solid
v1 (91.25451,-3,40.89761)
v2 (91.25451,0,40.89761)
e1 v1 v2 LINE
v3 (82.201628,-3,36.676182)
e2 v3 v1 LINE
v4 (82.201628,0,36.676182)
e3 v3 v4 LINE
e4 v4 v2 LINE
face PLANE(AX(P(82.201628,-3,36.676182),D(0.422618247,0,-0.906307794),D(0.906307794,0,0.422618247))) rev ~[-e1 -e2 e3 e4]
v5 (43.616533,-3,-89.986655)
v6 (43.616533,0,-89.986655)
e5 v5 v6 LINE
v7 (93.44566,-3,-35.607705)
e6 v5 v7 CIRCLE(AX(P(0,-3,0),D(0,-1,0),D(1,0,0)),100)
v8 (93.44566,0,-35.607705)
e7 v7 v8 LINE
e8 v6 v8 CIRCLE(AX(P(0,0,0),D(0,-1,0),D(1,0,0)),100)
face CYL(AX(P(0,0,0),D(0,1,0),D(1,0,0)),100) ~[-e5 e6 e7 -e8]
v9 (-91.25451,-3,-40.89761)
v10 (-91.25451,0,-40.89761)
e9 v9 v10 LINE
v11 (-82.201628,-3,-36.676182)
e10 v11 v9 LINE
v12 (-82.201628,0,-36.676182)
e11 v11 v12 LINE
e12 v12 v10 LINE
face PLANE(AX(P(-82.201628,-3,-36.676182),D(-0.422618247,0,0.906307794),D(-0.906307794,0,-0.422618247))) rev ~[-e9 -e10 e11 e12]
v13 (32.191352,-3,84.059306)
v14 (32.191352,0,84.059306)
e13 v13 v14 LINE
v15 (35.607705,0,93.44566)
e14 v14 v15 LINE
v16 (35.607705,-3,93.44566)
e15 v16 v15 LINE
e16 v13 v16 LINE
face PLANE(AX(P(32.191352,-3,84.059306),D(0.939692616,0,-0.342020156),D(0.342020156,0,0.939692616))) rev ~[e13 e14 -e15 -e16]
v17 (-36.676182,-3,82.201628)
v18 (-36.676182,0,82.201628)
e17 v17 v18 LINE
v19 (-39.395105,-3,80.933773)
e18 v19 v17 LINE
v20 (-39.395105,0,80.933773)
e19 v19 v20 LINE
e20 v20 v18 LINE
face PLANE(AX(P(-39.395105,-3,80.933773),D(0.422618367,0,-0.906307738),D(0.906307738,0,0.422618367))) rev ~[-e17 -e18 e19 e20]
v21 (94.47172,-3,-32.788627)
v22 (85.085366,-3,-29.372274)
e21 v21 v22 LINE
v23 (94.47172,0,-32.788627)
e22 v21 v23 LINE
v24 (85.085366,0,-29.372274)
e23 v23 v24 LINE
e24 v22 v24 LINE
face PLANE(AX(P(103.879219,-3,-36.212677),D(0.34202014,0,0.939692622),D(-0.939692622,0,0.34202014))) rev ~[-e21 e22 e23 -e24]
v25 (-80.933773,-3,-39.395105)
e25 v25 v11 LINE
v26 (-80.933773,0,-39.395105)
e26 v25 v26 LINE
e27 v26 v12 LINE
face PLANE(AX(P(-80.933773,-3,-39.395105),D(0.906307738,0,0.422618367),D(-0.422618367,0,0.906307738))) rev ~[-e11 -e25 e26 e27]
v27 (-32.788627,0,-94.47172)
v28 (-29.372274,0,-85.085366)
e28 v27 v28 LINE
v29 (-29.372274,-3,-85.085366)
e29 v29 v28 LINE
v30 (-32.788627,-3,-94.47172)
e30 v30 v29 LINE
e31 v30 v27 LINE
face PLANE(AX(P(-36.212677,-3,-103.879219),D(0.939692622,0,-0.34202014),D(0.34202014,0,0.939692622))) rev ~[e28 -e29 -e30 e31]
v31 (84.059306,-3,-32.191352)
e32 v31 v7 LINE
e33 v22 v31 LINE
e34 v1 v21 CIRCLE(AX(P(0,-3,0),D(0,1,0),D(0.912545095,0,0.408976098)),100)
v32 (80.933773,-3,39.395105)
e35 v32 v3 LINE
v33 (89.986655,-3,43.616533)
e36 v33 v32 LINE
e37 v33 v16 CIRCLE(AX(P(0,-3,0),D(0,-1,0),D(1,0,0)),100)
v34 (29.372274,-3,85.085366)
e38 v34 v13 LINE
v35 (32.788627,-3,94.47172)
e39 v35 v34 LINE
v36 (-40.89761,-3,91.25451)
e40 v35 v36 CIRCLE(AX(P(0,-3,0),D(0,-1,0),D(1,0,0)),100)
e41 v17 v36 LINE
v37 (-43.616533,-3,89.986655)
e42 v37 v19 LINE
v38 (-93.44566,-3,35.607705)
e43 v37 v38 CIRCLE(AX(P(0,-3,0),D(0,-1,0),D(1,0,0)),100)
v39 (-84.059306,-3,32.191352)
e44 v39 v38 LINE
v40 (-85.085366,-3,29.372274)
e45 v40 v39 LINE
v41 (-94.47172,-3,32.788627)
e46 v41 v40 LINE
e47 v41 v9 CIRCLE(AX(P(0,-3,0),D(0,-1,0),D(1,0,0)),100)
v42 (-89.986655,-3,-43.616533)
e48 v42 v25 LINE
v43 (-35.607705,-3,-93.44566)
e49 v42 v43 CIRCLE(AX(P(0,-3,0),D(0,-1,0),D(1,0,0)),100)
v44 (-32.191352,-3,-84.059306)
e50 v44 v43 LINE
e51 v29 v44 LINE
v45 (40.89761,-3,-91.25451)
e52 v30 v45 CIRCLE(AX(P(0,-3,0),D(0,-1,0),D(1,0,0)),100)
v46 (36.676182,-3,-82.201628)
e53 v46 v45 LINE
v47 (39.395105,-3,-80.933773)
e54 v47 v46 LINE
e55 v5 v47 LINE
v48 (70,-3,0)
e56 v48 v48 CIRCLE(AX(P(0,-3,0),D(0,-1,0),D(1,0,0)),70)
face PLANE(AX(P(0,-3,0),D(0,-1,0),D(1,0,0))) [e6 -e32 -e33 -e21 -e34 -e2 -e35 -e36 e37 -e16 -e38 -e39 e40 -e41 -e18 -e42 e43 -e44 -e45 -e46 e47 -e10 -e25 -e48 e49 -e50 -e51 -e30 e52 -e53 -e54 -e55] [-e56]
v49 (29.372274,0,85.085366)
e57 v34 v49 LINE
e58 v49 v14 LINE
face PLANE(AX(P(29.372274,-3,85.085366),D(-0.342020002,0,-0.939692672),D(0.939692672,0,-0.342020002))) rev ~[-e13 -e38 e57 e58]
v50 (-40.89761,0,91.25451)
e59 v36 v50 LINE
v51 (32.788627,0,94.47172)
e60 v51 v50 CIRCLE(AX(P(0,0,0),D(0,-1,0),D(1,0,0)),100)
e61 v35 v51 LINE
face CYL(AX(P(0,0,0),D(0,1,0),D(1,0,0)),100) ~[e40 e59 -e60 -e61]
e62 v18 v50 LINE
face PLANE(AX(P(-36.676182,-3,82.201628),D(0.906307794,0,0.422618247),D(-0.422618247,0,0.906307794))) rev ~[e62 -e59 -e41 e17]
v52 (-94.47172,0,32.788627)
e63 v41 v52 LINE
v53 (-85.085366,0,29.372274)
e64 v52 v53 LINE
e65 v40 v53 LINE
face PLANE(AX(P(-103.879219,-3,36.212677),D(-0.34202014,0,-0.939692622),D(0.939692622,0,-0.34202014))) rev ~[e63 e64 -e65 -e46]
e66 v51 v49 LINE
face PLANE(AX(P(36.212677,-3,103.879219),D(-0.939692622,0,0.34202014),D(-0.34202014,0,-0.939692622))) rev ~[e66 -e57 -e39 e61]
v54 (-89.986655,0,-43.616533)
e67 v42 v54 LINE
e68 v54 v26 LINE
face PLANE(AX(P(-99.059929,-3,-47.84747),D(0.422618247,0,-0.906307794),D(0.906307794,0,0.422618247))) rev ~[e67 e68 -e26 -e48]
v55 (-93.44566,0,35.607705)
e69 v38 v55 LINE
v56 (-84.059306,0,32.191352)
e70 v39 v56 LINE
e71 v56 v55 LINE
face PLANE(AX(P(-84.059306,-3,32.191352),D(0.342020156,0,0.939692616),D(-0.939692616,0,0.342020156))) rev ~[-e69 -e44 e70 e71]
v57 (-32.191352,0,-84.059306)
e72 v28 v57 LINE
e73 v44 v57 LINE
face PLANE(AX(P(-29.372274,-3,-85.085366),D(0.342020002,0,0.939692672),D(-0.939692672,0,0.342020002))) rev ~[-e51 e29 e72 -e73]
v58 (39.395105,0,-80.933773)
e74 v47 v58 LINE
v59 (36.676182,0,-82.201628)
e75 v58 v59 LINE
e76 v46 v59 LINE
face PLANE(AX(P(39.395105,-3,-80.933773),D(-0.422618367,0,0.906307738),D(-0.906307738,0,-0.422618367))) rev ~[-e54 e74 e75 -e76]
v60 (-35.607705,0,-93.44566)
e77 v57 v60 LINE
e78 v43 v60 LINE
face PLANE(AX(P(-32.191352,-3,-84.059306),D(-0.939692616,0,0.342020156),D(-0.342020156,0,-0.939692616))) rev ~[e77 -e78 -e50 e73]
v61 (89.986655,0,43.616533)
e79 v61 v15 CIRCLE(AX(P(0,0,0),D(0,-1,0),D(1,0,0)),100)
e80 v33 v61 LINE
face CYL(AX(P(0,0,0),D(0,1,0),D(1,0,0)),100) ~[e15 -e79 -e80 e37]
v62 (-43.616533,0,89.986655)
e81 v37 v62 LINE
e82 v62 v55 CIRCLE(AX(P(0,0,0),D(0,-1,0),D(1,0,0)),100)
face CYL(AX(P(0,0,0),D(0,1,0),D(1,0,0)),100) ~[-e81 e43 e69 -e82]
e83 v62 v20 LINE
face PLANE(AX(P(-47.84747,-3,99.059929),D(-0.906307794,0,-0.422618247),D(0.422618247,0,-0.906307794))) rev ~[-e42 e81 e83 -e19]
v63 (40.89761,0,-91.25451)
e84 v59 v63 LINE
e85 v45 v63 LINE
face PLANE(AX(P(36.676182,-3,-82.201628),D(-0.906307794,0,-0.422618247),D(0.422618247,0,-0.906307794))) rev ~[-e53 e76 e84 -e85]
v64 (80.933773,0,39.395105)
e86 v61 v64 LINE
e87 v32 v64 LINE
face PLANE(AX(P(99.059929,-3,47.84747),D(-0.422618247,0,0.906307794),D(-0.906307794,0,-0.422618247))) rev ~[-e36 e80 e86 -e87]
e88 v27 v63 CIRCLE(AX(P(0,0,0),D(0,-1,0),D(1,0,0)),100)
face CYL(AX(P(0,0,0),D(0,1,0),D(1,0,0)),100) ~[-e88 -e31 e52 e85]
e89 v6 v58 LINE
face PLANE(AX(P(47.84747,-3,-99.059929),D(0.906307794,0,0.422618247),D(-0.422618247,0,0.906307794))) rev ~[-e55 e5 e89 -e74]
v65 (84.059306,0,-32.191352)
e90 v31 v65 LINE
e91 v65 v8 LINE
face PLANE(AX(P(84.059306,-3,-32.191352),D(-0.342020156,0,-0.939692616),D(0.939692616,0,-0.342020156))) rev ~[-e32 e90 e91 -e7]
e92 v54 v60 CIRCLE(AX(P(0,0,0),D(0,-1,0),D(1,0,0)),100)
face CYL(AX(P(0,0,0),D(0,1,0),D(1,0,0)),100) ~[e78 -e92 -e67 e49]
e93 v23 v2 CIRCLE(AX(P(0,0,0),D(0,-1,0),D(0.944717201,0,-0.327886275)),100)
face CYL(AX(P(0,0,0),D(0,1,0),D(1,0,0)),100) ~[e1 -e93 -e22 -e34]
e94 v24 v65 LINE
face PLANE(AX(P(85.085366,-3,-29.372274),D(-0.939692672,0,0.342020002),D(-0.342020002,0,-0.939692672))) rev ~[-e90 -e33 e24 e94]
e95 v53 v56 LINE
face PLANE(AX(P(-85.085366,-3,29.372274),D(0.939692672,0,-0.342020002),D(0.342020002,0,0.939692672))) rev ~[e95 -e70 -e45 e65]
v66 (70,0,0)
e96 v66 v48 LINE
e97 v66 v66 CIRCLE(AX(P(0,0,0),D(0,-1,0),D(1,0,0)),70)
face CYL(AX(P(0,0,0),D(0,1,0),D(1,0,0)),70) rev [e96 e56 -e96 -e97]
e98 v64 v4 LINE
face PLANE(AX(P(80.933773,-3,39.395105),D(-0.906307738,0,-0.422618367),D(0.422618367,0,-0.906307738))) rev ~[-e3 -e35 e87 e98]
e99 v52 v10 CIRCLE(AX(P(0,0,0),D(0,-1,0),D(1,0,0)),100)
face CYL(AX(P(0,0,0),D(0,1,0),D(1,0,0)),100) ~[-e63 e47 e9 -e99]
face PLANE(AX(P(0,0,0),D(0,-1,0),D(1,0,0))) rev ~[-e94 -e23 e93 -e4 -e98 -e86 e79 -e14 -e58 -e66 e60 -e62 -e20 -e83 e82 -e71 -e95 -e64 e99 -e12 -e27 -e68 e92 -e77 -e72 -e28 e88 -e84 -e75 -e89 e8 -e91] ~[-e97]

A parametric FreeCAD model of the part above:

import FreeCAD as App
import Part
import Sketcher
Q = App.Units.Quantity

doc = App.newDocument("Part")
body = doc.addObject("PartDesign::Body", "Body")

sketch1 = body.newObject("Sketcher::SketchObject", "Sketch")
sketch1.AttachmentSupport = (doc.getObject("XZ_Plane"), [""])
sketch1.MapMode = "FlatFace"
sketch1.addGeometry(Part.Circle(App.Vector(0, 0, 0), App.Vector(0, 0, 1), 100), False)
sketch1.addGeometry(Part.Circle(App.Vector(0, 0, 0), App.Vector(0, 0, 1), 70), False)
sketch1.addConstraint(Sketcher.Constraint("Coincident", 0, 3, -1, 1))
sketch1.addConstraint(Sketcher.Constraint("Coincident", 1, 3, -1, 1))
sketch1.addConstraint(Sketcher.Constraint("Diameter", 0, 200.0))
sketch1.addConstraint(Sketcher.Constraint("Diameter", 1, 140.0))
pad1 = body.newObject("PartDesign::Pad", "Pad")
pad1.Profile = sketch1
pad1.Length = 3

sketch2 = body.newObject("Sketcher::SketchObject", "Sketch001")
sketch2.AttachmentSupport = (doc.getObject("XZ_Plane"), [""])
sketch2.MapMode = "FlatFace"
sketch2.AttachmentOffset = App.Placement(App.Vector(0, 0, 3), App.Rotation())
sketch2.addGeometry(Part.LineSegment(App.Vector(-82.201628, -36.676182, 0), App.Vector(-100.327784, -45.128547, 0)), False)
sketch2.addGeometry(Part.LineSegment(App.Vector(-100.327784, -45.128547, 0), App.Vector(-99.059929, -47.84747, 0)), False)
sketch2.addGeometry(Part.LineSegment(App.Vector(-99.059929, -47.84747, 0), App.Vector(-80.933773, -39.395105, 0)), False)
sketch2.addGeometry(Part.LineSegment(App.Vector(-80.933773, -39.395105, 0), App.Vector(-82.201628, -36.676182, 0)), False)
sketch2.addGeometry(Part.LineSegment(App.Vector(-39.031755, -102.853158, 0), App.Vector(-36.212677, -103.879219, 0)), False)
sketch2.addGeometry(Part.LineSegment(App.Vector(-36.212677, -103.879219, 0), App.Vector(-29.372274, -85.085366, 0)), False)
sketch2.addGeometry(Part.LineSegment(App.Vector(-29.372274, -85.085366, 0), App.Vector(-32.191352, -84.059306, 0)), False)
sketch2.addGeometry(Part.LineSegment(App.Vector(-32.191352, -84.059306, 0), App.Vector(-39.031755, -102.853158, 0)), False)
sketch2.addGeometry(Part.LineSegment(App.Vector(45.128547, -100.327784, 0), App.Vector(47.84747, -99.059929, 0)), False)
sketch2.addGeometry(Part.LineSegment(App.Vector(47.84747, -99.059929, 0), App.Vector(39.395105, -80.933773, 0)), False)
sketch2.addGeometry(Part.LineSegment(App.Vector(39.395105, -80.933773, 0), App.Vector(36.676182, -82.201628, 0)), False)
sketch2.addGeometry(Part.LineSegment(App.Vector(36.676182, -82.201628, 0), App.Vector(45.128547, -100.327784, 0)), False)
sketch2.addGeometry(Part.LineSegment(App.Vector(102.853158, -39.031755, 0), App.Vector(103.879219, -36.212677, 0)), False)
sketch2.addGeometry(Part.LineSegment(App.Vector(103.879219, -36.212677, 0), App.Vector(85.085366, -29.372274, 0)), False)
sketch2.addGeometry(Part.LineSegment(App.Vector(85.085366, -29.372274, 0), App.Vector(84.059306, -32.191352, 0)), False)
sketch2.addGeometry(Part.LineSegment(App.Vector(84.059306, -32.191352, 0), App.Vector(102.853158, -39.031755, 0)), False)
sketch2.addGeometry(Part.LineSegment(App.Vector(100.327784, 45.128547, 0), App.Vector(99.059929, 47.84747, 0)), False)
sketch2.addGeometry(Part.LineSegment(App.Vector(99.059929, 47.84747, 0), App.Vector(80.933773, 39.395105, 0)), False)
sketch2.addGeometry(Part.LineSegment(App.Vector(80.933773, 39.395105, 0), App.Vector(82.201628, 36.676182, 0)), False)
sketch2.addGeometry(Part.LineSegment(App.Vector(82.201628, 36.676182, 0), App.Vector(100.327784, 45.128547, 0)), False)
sketch2.addGeometry(Part.LineSegment(App.Vector(39.031755, 102.853158, 0), App.Vector(36.212677, 103.879219, 0)), False)
sketch2.addGeometry(Part.LineSegment(App.Vector(36.212677, 103.879219, 0), App.Vector(29.372274, 85.085366, 0)), False)
sketch2.addGeometry(Part.LineSegment(App.Vector(29.372274, 85.085366, 0), App.Vector(32.191352, 84.059306, 0)), False)
sketch2.addGeometry(Part.LineSegment(App.Vector(32.191352, 84.059306, 0), App.Vector(39.031755, 102.853158, 0)), False)
sketch2.addGeometry(Part.LineSegment(App.Vector(-45.128547, 100.327784, 0), App.Vector(-47.84747, 99.059929, 0)), False)
sketch2.addGeometry(Part.LineSegment(App.Vector(-47.84747, 99.059929, 0), App.Vector(-39.395105, 80.933773, 0)), False)
sketch2.addGeometry(Part.LineSegment(App.Vector(-39.395105, 80.933773, 0), App.Vector(-36.676182, 82.201628, 0)), False)
sketch2.addGeometry(Part.LineSegment(App.Vector(-36.676182, 82.201628, 0), App.Vector(-45.128547, 100.327784, 0)), False)
sketch2.addGeometry(Part.LineSegment(App.Vector(-102.853158, 39.031755, 0), App.Vector(-103.879219, 36.212677, 0)), False)
sketch2.addGeometry(Part.LineSegment(App.Vector(-103.879219, 36.212677, 0), App.Vector(-85.085366, 29.372274, 0)), False)
sketch2.addGeometry(Part.LineSegment(App.Vector(-85.085366, 29.372274, 0), App.Vector(-84.059306, 32.191352, 0)), False)
sketch2.addGeometry(Part.LineSegment(App.Vector(-84.059306, 32.191352, 0), App.Vector(-102.853158, 39.031755, 0)), False)
sketch2.addConstraint(Sketcher.Constraint("Coincident", 0, 2, 1, 1))
sketch2.addConstraint(Sketcher.Constraint("Coincident", 1, 2, 2, 1))
sketch2.addConstraint(Sketcher.Constraint("Coincident", 2, 2, 3, 1))
sketch2.addConstraint(Sketcher.Constraint("Coincident", 3, 2, 0, 1))
sketch2.addConstraint(Sketcher.Constraint("Coincident", 4, 2, 5, 1))
sketch2.addConstraint(Sketcher.Constraint("Coincident", 5, 2, 6, 1))
sketch2.addConstraint(Sketcher.Constraint("Coincident", 6, 2, 7, 1))
sketch2.addConstraint(Sketcher.Constraint("Coincident", 7, 2, 4, 1))
sketch2.addConstraint(Sketcher.Constraint("Coincident", 8, 2, 9, 1))
sketch2.addConstraint(Sketcher.Constraint("Coincident", 9, 2, 10, 1))
sketch2.addConstraint(Sketcher.Constraint("Coincident", 10, 2, 11, 1))
sketch2.addConstraint(Sketcher.Constraint("Coincident", 11, 2, 8, 1))
sketch2.addConstraint(Sketcher.Constraint("Coincident", 12, 2, 13, 1))
sketch2.addConstraint(Sketcher.Constraint("Coincident", 13, 2, 14, 1))
sketch2.addConstraint(Sketcher.Constraint("Coincident", 14, 2, 15, 1))
sketch2.addConstraint(Sketcher.Constraint("Coincident", 15, 2, 12, 1))
sketch2.addConstraint(Sketcher.Constraint("Coincident", 16, 2, 17, 1))
sketch2.addConstraint(Sketcher.Constraint("Coincident", 17, 2, 18, 1))
sketch2.addConstraint(Sketcher.Constraint("Coincident", 18, 2, 19, 1))
sketch2.addConstraint(Sketcher.Constraint("Coincident", 19, 2, 16, 1))
sketch2.addConstraint(Sketcher.Constraint("Coincident", 20, 2, 21, 1))
sketch2.addConstraint(Sketcher.Constraint("Coincident", 21, 2, 22, 1))
sketch2.addConstraint(Sketcher.Constraint("Coincident", 22, 2, 23, 1))
sketch2.addConstraint(Sketcher.Constraint("Coincident", 23, 2, 20, 1))
sketch2.addConstraint(Sketcher.Constraint("Coincident", 24, 2, 25, 1))
sketch2.addConstraint(Sketcher.Constraint("Coincident", 25, 2, 26, 1))
sketch2.addConstraint(Sketcher.Constraint("Coincident", 26, 2, 27, 1))
sketch2.addConstraint(Sketcher.Constraint("Coincident", 27, 2, 24, 1))
sketch2.addConstraint(Sketcher.Constraint("Coincident", 28, 2, 29, 1))
sketch2.addConstraint(Sketcher.Constraint("Coincident", 29, 2, 30, 1))
sketch2.addConstraint(Sketcher.Constraint("Coincident", 30, 2, 31, 1))
sketch2.addConstraint(Sketcher.Constraint("Coincident", 31, 2, 28, 1))
sketch2.addConstraint(Sketcher.Constraint("Symmetric", 1, 2, 16, 2, -1, 1))
sketch2.addConstraint(Sketcher.Constraint("Symmetric", 2, 2, 17, 2, -1, 1))
sketch2.addConstraint(Sketcher.Constraint("Symmetric", 3, 2, 18, 2, -1, 1))
sketch2.addConstraint(Sketcher.Constraint("Symmetric", 0, 2, 19, 2, -1, 1))
sketch2.addConstraint(Sketcher.Constraint("Symmetric", 4, 2, 20, 2, -1, 1))
sketch2.addConstraint(Sketcher.Constraint("Symmetric", 5, 2, 21, 2, -1, 1))
sketch2.addConstraint(Sketcher.Constraint("Symmetric", 6, 2, 22, 2, -1, 1))
sketch2.addConstraint(Sketcher.Constraint("Symmetric", 7, 2, 23, 2, -1, 1))
sketch2.addConstraint(Sketcher.Constraint("Symmetric", 8, 2, 24, 2, -1, 1))
sketch2.addConstraint(Sketcher.Constraint("Symmetric", 9, 2, 25, 2, -1, 1))
sketch2.addConstraint(Sketcher.Constraint("Symmetric", 10, 2, 26, 2, -1, 1))
sketch2.addConstraint(Sketcher.Constraint("Symmetric", 11, 2, 27, 2, -1, 1))
sketch2.addConstraint(Sketcher.Constraint("Symmetric", 12, 2, 28, 2, -1, 1))
sketch2.addConstraint(Sketcher.Constraint("Symmetric", 13, 2, 29, 2, -1, 1))
sketch2.addConstraint(Sketcher.Constraint("Symmetric", 14, 2, 30, 2, -1, 1))
sketch2.addConstraint(Sketcher.Constraint("Symmetric", 15, 2, 31, 2, -1, 1))
sketch2.addConstraint(Sketcher.Constraint("Perpendicular", 0, 1))
sketch2.addConstraint(Sketcher.Constraint("Perpendicular", 1, 2))
sketch2.addConstraint(Sketcher.Constraint("Perpendicular", 2, 3))
sketch2.addConstraint(Sketcher.Constraint("Perpendicular", 4, 5))
sketch2.addConstraint(Sketcher.Constraint("Perpendicular", 5, 6))
sketch2.addConstraint(Sketcher.Constraint("Perpendicular", 6, 7))
sketch2.addConstraint(Sketcher.Constraint("Perpendicular", 3, 8))
sketch2.addConstraint(Sketcher.Constraint("Perpendicular", 8, 9))
sketch2.addConstraint(Sketcher.Constraint("Perpendicular", 9, 10))
sketch2.addConstraint(Sketcher.Constraint("Perpendicular", 10, 11))
sketch2.addConstraint(Sketcher.Constraint("Parallel", 7, 12))
sketch2.addConstraint(Sketcher.Constraint("Perpendicular", 12, 13))
sketch2.addConstraint(Sketcher.Constraint("Perpendicular", 13, 14))
sketch2.addConstraint(Sketcher.Constraint("Perpendicular", 14, 15))
sketch2.addConstraint(Sketcher.Constraint("Equal", 3, 4))
sketch2.addConstraint(Sketcher.Constraint("Equal", 2, 5))
sketch2.addConstraint(Sketcher.Constraint("Equal", 6, 8))
sketch2.addConstraint(Sketcher.Constraint("Equal", 7, 9))
sketch2.addConstraint(Sketcher.Constraint("Equal", 10, 12))
sketch2.addConstraint(Sketcher.Constraint("Equal", 11, 13))
sketch2.addConstraint(Sketcher.Constraint("Angle", 0, Q("-155.000001 deg")))
sketch2.addConstraint(Sketcher.Constraint("Angle", 4, Q("-20.000009 deg")))
sketch2.addConstraint(Sketcher.Constraint("Distance", 0, 20.0))
sketch2.addConstraint(Sketcher.Constraint("Distance", 1, 3.0))
sketch2.addConstraint(Sketcher.Constraint("DistanceX", 2, 2, 5, 2, 51.561499))
sketch2.addConstraint(Sketcher.Constraint("DistanceY", 6, 2, 2, 2, 44.664201))
sketch2.addConstraint(Sketcher.Constraint("DistanceX", 6, 2, 11, 2, 77.319899))
sketch2.addConstraint(Sketcher.Constraint("DistanceY", 9, 2, 13, 2, 51.561499))
sketch2.addConstraint(Sketcher.Constraint("DistanceX", 9, 2, 14, 2, 44.664201))
sketch2.addConstraint(Sketcher.Constraint("DistanceY", 14, 2, 19, 2, 77.319899))
sketch2.addConstraint(Sketcher.Constraint("DistanceX", 1, 2, -1, 1, 99.059929))
sketch2.addConstraint(Sketcher.Constraint("DistanceY", 1, 2, -1, 1, 47.84747))
pocket1 = body.newObject("PartDesign::Pocket", "Pocket")
pocket1.Profile = sketch2
pocket1.Length = 3

doc.recompute()
